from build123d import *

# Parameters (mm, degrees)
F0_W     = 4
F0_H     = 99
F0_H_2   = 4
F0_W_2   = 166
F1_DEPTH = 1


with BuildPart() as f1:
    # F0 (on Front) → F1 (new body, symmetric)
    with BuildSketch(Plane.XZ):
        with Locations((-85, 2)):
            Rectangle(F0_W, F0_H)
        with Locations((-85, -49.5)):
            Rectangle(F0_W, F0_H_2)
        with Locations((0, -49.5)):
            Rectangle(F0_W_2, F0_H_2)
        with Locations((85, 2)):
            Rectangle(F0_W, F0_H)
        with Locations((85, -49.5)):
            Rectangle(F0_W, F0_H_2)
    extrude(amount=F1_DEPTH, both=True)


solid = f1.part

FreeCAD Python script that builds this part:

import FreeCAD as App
import Part
import Sketcher

V = App.Vector
Q = App.Units.Quantity

doc = App.newDocument("Part")
body = doc.addObject("PartDesign::Body", "Body")

# Sketch on XZ plane
sketch1 = body.newObject("Sketcher::SketchObject", "Sketch")
sketch1.AttachmentSupport = (doc.getObject("XZ_Plane"), [""])
sketch1.MapMode = "FlatFace"
sketch1.addGeometry([
    Part.LineSegment(V(-87, 51.5, 0), V(-87, -51.5, 0)),  # 0
    Part.LineSegment(V(-87, -51.5, 0), V(87, -51.5, 0)),  # 1
    Part.LineSegment(V(87, -51.5, 0), V(87, 51.5, 0)),  # 2
    Part.LineSegment(V(87, 51.5, 0), V(83, 51.5, 0)),  # 3
    Part.LineSegment(V(83, 51.5, 0), V(83, -47.5, 0)),  # 4
    Part.LineSegment(V(83, -47.5, 0), V(-83, -47.5, 0)),  # 5
    Part.LineSegment(V(-83, -47.5, 0), V(-83, 51.5, 0)),  # 6
    Part.LineSegment(V(-83, 51.5, 0), V(-87, 51.5, 0)),  # 7
], False)
sketch1.addConstraint([
    Sketcher.Constraint("Coincident", 0, 2, 1, 1),
    Sketcher.Constraint("Coincident", 1, 2, 2, 1),
    Sketcher.Constraint("Coincident", 2, 2, 3, 1),
    Sketcher.Constraint("Coincident", 3, 2, 4, 1),
    Sketcher.Constraint("Coincident", 4, 2, 5, 1),
    Sketcher.Constraint("Coincident", 5, 2, 6, 1),
    Sketcher.Constraint("Coincident", 6, 2, 7, 1),
    Sketcher.Constraint("Coincident", 7, 2, 0, 1),
    Sketcher.Constraint("Vertical", 0),
    Sketcher.Constraint("Horizontal", 1),
    Sketcher.Constraint("Vertical", 2),
    Sketcher.Constraint("Horizontal", 3),
    Sketcher.Constraint("Vertical", 4),
    Sketcher.Constraint("Horizontal", 5),
    Sketcher.Constraint("Vertical", 6),
    Sketcher.Constraint("Horizontal", 7),
    Sketcher.Constraint("Symmetric", 0, 2, 2, 2, -1, 1),
    Sketcher.Constraint("Symmetric", 3, 2, 6, 2, -2),
    Sketcher.Constraint("DistanceX", 1, 1, 1, 2, Q("174 mm")),
    Sketcher.Constraint("DistanceX", 3, 2, 3, 1, Q("4 mm")),
    Sketcher.Constraint("DistanceY", 0, 2, 0, 1, Q("103 mm")),
    Sketcher.Constraint("DistanceY", 4, 2, 4, 1, Q("99 mm")),
])
pad1 = body.newObject("PartDesign::Pad", "Pad")
pad1.Profile = sketch1
pad1.Length = 2
pad1.Midplane = True

doc.recompute()
